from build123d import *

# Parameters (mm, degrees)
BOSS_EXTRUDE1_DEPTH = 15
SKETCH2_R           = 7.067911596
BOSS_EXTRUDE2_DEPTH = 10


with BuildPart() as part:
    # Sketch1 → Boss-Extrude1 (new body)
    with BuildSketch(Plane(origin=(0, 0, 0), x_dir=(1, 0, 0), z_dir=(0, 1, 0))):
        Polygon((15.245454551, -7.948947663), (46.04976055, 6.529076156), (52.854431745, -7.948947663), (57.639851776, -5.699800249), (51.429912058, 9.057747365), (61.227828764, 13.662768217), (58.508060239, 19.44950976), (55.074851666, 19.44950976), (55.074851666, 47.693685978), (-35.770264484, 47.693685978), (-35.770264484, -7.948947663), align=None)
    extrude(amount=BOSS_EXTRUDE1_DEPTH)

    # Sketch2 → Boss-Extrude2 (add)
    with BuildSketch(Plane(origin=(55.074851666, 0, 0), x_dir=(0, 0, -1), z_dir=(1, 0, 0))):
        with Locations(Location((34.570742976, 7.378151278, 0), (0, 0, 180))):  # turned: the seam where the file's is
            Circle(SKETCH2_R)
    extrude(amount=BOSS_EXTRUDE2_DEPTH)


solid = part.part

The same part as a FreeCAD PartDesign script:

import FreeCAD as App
import Part
import Sketcher
from FreeCAD import Vector
Q = App.Units.Quantity


def add_polygon(sketch, points):
    """Adds a closed chain of lines whose ends are joined by coincident constraints."""
    first, n = sketch.GeometryCount, len(points)
    for a, b in zip(points, points[1:] + points[:1]):
        sketch.addGeometry(Part.LineSegment(App.Vector(*a, 0), App.Vector(*b, 0)), False)
    for i in range(n):
        sketch.addConstraint(Sketcher.Constraint("Coincident", first + i, 2, first + (i + 1) % n, 1))

doc = App.newDocument("Part")
body = doc.addObject("PartDesign::Body", "Body")

# Sketch on XZ plane
sketch1 = body.newObject("Sketcher::SketchObject", "Sketch")
sketch1.AttachmentSupport = (doc.getObject("XZ_Plane"), [""])
sketch1.MapMode = "FlatFace"
add_polygon(sketch1, [(15.245455, 7.948948), (46.049761, -6.529076), (52.854432, 7.948948), (57.639852, 5.6998), (51.429912, -9.057747), (61.227829, -13.662768), (58.50806, -19.44951), (55.074852, -19.44951), (55.074852, -47.693686), (-35.770264, -47.693686), (-35.770264, 7.948948)])  # lines 0-10
sketch1.addConstraint([
    Sketcher.Constraint("Horizontal", 6),
    Sketcher.Constraint("Vertical", 7),
    Sketcher.Constraint("Horizontal", 8),
    Sketcher.Constraint("Vertical", 9),
    Sketcher.Constraint("Horizontal", 10),
    Sketcher.Constraint("DistanceX", 6, 2, 2, 2, Q("2.565 mm")),
    Sketcher.Constraint("DistanceX", 6, 2, 6, 1, Q("3.433209 mm")),
    Sketcher.Constraint("DistanceX", 10, 1, 10, 2, Q("51.015719 mm")),
    Sketcher.Constraint("DistanceY", -1, 1, 2, 2, Q("5.6998 mm")),
    Sketcher.Constraint("DistanceX", 0, 2, 5, 2, Q("12.4583 mm")),
    Sketcher.Constraint("Distance", 2, Q("5.287618 mm")),
    Sketcher.Constraint("Distance", 3, Q("16.010889 mm")),
    Sketcher.Constraint("DistanceX", 8, 2, 8, 1, Q("90.845116 mm")),
    Sketcher.Constraint("DistanceY", 7, 2, 7, 1, Q("28.244176 mm")),
    Sketcher.Constraint("DistanceY", 9, 1, 9, 2, Q("55.642634 mm")),
    Sketcher.Constraint("DistanceX", -1, 1, 0, 2, Q("46.049761 mm")),
    Sketcher.Constraint("DistanceX", -1, 1, 1, 2, Q("52.854432 mm")),
    Sketcher.Constraint("DistanceX", -1, 1, 4, 2, Q("61.227829 mm")),
    Sketcher.Constraint("DistanceY", 4, 2, -1, 1, Q("13.662768 mm")),
    Sketcher.Constraint("DistanceY", 5, 2, -1, 1, Q("19.44951 mm")),
    Sketcher.Constraint("DistanceX", 0, 2, 3, 2, Q("5.380152 mm")),
    Sketcher.Constraint("DistanceY", 3, 2, 0, 2, Q("2.528671 mm")),
])
pad1 = body.newObject("PartDesign::Pad", "Pad")
pad1.Profile = sketch1
pad1.Length = 15
pad1.Reversed = True

# Sketch on YZ plane
sketch2 = body.newObject("Sketcher::SketchObject", "Sketch001")
sketch2.AttachmentSupport = (doc.getObject("YZ_Plane"), [""])
sketch2.MapMode = "FlatFace"
sketch2.AttachmentOffset = App.Placement(Vector(0, 0, 55.074852), App.Rotation())
sketch2.addGeometry(Part.Circle(Vector(7, -35, 0), Vector(0, 0, 1), 7), False)
sketch2.addConstraint([
    Sketcher.Constraint("Diameter", 0, Q("14.135823 mm")),
    Sketcher.Constraint("DistanceX", -1, 1, 0, 3, Q("7.378151 mm")),
    Sketcher.Constraint("DistanceY", 0, 3, -1, 1, Q("34.570743 mm")),
])
pad2 = body.newObject("PartDesign::Pad", "Pad001")
pad2.Profile = sketch2
pad2.Length = 10

doc.recompute()
